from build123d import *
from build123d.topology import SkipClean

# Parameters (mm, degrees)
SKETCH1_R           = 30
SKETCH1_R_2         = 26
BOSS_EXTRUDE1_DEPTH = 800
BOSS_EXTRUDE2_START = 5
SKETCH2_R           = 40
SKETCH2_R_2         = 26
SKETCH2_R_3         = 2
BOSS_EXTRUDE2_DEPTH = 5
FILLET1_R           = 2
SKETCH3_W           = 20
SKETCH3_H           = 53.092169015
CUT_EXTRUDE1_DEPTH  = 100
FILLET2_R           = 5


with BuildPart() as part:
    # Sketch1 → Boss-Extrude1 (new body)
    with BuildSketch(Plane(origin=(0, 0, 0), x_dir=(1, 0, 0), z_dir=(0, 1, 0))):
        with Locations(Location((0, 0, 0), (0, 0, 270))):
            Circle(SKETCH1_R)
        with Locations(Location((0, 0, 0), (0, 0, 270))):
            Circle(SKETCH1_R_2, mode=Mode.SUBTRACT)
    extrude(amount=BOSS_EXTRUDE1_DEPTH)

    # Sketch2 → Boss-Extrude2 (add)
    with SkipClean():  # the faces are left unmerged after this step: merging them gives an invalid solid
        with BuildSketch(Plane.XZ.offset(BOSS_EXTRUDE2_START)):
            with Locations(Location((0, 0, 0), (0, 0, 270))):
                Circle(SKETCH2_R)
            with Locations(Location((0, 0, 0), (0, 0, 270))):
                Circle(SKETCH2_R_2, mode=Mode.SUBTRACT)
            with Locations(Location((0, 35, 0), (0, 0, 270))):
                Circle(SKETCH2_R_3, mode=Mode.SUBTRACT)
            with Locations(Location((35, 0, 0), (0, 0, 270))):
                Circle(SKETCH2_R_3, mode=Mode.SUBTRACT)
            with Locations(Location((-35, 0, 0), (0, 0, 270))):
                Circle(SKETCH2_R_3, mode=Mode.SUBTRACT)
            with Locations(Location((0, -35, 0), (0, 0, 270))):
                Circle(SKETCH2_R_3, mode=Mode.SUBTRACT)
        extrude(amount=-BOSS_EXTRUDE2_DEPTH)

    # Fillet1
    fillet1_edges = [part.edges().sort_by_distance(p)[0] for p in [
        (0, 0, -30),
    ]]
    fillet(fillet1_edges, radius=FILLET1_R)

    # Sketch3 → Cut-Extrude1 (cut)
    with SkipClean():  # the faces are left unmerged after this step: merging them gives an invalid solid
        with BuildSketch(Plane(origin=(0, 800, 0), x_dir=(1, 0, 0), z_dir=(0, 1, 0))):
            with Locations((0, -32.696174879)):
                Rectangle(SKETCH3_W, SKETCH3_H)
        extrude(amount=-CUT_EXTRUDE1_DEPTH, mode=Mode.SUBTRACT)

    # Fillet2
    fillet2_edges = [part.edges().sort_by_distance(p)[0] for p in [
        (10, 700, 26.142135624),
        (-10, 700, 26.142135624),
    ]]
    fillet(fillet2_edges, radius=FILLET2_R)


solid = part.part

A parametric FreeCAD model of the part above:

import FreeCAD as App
import Part
import Sketcher

V = App.Vector


def edges_at(feature, points):
    """Names of the edges that pass closest to the given points."""
    edges = feature.Shape.Edges
    near = lambda p: min(range(len(edges)), key=lambda i: edges[i].distToShape(Part.Vertex(*p))[0])
    return sorted({f"Edge{near(p) + 1}" for p in points})


def add_polygon(sketch, points):
    """Adds a closed chain of lines whose ends are joined by coincident constraints."""
    first, n = sketch.GeometryCount, len(points)
    for a, b in zip(points, points[1:] + points[:1]):
        sketch.addGeometry(Part.LineSegment(App.Vector(*a, 0), App.Vector(*b, 0)), False)
    for i in range(n):
        sketch.addConstraint(Sketcher.Constraint("Coincident", first + i, 2, first + (i + 1) % n, 1))

doc = App.newDocument("Part")
body = doc.addObject("PartDesign::Body", "Body")

# Sketch on XZ plane
sketch1 = body.newObject("Sketcher::SketchObject", "Sketch")
sketch1.AttachmentSupport = (doc.getObject("XZ_Plane"), [""])
sketch1.MapMode = "FlatFace"
sketch1.addGeometry([
    Part.Circle(V(0, 0, 0), V(0, 0, 1), 30),
    Part.Circle(V(0, 0, 0), V(0, 0, 1), 26),
], False)
sketch1.addConstraint([
    Sketcher.Constraint("Coincident", 0, 3, -1, 1),
    Sketcher.Constraint("Coincident", 1, 3, -1, 1),
    Sketcher.Constraint("Diameter", 0, 60.0),
    Sketcher.Constraint("Diameter", 1, 52.0),
])
pad1 = body.newObject("PartDesign::Pad", "Pad")
pad1.Profile = sketch1
pad1.Length = 800
pad1.Reversed = True

# Sketch on XZ plane
sketch2 = body.newObject("Sketcher::SketchObject", "Sketch001")
sketch2.AttachmentSupport = (doc.getObject("XZ_Plane"), [""])
sketch2.MapMode = "FlatFace"
sketch2.AttachmentOffset = App.Placement(V(0, 0, 5), App.Rotation())
sketch2.addGeometry([
    Part.Circle(V(0, 0, 0), V(0, 0, 1), 40),  # 0
    Part.Circle(V(0, 35, 0), V(0, 0, 1), 2),  # 1
    Part.Circle(V(-35, 0, 0), V(0, 0, 1), 2),  # 2
    Part.Circle(V(35, 0, 0), V(0, 0, 1), 2),  # 3
    Part.Circle(V(0, 0, 0), V(0, 0, 1), 26),  # 4
    Part.Circle(V(0, -35, 0), V(0, 0, 1), 2),  # 5
], False)
sketch2.addConstraint([
    Sketcher.Constraint("Coincident", 0, 3, -1, 1),
    Sketcher.Constraint("Coincident", 4, 3, -1, 1),
    Sketcher.Constraint("Equal", 1, 2),
    Sketcher.Constraint("Equal", 2, 3),
    Sketcher.Constraint("Equal", 3, 5),
    Sketcher.Constraint("Symmetric", 2, 3, 3, 3, -1, 1),
    Sketcher.Constraint("Symmetric", 1, 3, 5, 3, -1, 1),
    Sketcher.Constraint("PointOnObject", 1, 3, -2),
    Sketcher.Constraint("PointOnObject", 2, 3, -1),
    Sketcher.Constraint("Diameter", 0, 80.0),
    Sketcher.Constraint("Diameter", 1, 4.0),
    Sketcher.Constraint("Diameter", 4, 52.0),
    Sketcher.Constraint("DistanceY", -1, 1, 1, 3, 35.0),
    Sketcher.Constraint("DistanceX", 2, 3, -1, 1, 35.0),
])
pad2 = body.newObject("PartDesign::Pad", "Pad001")
pad2.Profile = sketch2
pad2.Length = 5
pad2.Reversed = True
doc.recompute()

fillet = body.newObject("PartDesign::Fillet", "Fillet")
fillet.Base = (pad2, edges_at(pad2, [(0, 0, -30)]))
fillet.Radius = 2

# Sketch on XZ plane
sketch3 = body.newObject("Sketcher::SketchObject", "Sketch002")
sketch3.AttachmentSupport = (doc.getObject("XZ_Plane"), [""])
sketch3.MapMode = "FlatFace"
sketch3.AttachmentOffset = App.Placement(V(0, 0, -800), App.Rotation())
add_polygon(sketch3, [(-10, 6), (-10, 59), (10, 59), (10, 6)])  # lines 0-3
sketch3.addConstraint([
    Sketcher.Constraint("Vertical", 0),
    Sketcher.Constraint("Horizontal", 1),
    Sketcher.Constraint("Vertical", 2),
    Sketcher.Constraint("Horizontal", 3),
    Sketcher.Constraint("DistanceX", 1, 1, 1, 2, 20.0),
    Sketcher.Constraint("DistanceX", 0, 2, -1, 1, 10.0),
    Sketcher.Constraint("DistanceY", 0, 1, 0, 2, 53.092169),
    Sketcher.Constraint("DistanceY", -1, 1, 0, 2, 59.242259),
])
pocket1 = body.newObject("PartDesign::Pocket", "Pocket")
pocket1.Profile = sketch3
pocket1.Length = 100
pocket1.Reversed = True
doc.recompute()

fillet2 = body.newObject("PartDesign::Fillet", "Fillet001")
fillet2.Base = (pocket1, edges_at(pocket1, [(10, 700, 26.142), (-10, 700, 26.142)]))
fillet2.Radius = 5

doc.recompute()
